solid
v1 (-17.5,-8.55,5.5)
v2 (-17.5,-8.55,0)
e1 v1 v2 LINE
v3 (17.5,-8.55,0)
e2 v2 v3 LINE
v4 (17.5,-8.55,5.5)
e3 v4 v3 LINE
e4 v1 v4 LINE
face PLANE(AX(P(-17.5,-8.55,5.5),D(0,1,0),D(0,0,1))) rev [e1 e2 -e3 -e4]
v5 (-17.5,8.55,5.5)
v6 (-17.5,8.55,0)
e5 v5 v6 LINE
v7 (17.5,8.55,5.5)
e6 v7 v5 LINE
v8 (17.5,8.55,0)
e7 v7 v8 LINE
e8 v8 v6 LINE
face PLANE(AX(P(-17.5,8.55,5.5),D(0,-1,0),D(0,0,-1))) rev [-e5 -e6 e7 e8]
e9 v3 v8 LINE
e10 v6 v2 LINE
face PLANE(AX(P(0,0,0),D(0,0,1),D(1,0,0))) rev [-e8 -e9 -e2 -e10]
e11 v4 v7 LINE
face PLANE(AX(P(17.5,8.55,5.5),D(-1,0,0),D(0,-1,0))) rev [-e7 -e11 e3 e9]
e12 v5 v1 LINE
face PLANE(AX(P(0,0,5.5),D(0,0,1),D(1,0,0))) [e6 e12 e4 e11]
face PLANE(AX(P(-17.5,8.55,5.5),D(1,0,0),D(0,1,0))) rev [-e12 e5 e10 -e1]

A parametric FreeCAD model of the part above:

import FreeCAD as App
import Part
import Sketcher
from FreeCAD import Vector


def add_polygon(sketch, points):
    """Adds a closed chain of lines whose ends are joined by coincident constraints."""
    first, n = sketch.GeometryCount, len(points)
    for a, b in zip(points, points[1:] + points[:1]):
        sketch.addGeometry(Part.LineSegment(App.Vector(*a, 0), App.Vector(*b, 0)), False)
    for i in range(n):
        sketch.addConstraint(Sketcher.Constraint("Coincident", first + i, 2, first + (i + 1) % n, 1))

doc = App.newDocument("Part")
body = doc.addObject("PartDesign::Body", "Body")

sketch1 = body.newObject("Sketcher::SketchObject", "Sketch")
sketch1.AttachmentSupport = (doc.getObject("XY_Plane"), [""])
sketch1.MapMode = "FlatFace"
add_polygon(sketch1, [(-17.5, 8.55), (-17.5, -8.55), (17.5, -8.55), (17.5, 8.55)])
sketch1.addConstraint([
    Sketcher.Constraint("Vertical", 0),
    Sketcher.Constraint("Horizontal", 1),
    Sketcher.Constraint("Vertical", 2),
    Sketcher.Constraint("Horizontal", 3),
    Sketcher.Constraint("Symmetric", 0, 2, 2, 2, -1, 1),
    Sketcher.Constraint("DistanceX", 1, 1, 1, 2, 35.0),
    Sketcher.Constraint("DistanceY", 0, 2, 0, 1, 17.1),
])
pad1 = body.newObject("PartDesign::Pad", "Pad")
pad1.Profile = sketch1
pad1.Length = 5.5

doc.recompute()
